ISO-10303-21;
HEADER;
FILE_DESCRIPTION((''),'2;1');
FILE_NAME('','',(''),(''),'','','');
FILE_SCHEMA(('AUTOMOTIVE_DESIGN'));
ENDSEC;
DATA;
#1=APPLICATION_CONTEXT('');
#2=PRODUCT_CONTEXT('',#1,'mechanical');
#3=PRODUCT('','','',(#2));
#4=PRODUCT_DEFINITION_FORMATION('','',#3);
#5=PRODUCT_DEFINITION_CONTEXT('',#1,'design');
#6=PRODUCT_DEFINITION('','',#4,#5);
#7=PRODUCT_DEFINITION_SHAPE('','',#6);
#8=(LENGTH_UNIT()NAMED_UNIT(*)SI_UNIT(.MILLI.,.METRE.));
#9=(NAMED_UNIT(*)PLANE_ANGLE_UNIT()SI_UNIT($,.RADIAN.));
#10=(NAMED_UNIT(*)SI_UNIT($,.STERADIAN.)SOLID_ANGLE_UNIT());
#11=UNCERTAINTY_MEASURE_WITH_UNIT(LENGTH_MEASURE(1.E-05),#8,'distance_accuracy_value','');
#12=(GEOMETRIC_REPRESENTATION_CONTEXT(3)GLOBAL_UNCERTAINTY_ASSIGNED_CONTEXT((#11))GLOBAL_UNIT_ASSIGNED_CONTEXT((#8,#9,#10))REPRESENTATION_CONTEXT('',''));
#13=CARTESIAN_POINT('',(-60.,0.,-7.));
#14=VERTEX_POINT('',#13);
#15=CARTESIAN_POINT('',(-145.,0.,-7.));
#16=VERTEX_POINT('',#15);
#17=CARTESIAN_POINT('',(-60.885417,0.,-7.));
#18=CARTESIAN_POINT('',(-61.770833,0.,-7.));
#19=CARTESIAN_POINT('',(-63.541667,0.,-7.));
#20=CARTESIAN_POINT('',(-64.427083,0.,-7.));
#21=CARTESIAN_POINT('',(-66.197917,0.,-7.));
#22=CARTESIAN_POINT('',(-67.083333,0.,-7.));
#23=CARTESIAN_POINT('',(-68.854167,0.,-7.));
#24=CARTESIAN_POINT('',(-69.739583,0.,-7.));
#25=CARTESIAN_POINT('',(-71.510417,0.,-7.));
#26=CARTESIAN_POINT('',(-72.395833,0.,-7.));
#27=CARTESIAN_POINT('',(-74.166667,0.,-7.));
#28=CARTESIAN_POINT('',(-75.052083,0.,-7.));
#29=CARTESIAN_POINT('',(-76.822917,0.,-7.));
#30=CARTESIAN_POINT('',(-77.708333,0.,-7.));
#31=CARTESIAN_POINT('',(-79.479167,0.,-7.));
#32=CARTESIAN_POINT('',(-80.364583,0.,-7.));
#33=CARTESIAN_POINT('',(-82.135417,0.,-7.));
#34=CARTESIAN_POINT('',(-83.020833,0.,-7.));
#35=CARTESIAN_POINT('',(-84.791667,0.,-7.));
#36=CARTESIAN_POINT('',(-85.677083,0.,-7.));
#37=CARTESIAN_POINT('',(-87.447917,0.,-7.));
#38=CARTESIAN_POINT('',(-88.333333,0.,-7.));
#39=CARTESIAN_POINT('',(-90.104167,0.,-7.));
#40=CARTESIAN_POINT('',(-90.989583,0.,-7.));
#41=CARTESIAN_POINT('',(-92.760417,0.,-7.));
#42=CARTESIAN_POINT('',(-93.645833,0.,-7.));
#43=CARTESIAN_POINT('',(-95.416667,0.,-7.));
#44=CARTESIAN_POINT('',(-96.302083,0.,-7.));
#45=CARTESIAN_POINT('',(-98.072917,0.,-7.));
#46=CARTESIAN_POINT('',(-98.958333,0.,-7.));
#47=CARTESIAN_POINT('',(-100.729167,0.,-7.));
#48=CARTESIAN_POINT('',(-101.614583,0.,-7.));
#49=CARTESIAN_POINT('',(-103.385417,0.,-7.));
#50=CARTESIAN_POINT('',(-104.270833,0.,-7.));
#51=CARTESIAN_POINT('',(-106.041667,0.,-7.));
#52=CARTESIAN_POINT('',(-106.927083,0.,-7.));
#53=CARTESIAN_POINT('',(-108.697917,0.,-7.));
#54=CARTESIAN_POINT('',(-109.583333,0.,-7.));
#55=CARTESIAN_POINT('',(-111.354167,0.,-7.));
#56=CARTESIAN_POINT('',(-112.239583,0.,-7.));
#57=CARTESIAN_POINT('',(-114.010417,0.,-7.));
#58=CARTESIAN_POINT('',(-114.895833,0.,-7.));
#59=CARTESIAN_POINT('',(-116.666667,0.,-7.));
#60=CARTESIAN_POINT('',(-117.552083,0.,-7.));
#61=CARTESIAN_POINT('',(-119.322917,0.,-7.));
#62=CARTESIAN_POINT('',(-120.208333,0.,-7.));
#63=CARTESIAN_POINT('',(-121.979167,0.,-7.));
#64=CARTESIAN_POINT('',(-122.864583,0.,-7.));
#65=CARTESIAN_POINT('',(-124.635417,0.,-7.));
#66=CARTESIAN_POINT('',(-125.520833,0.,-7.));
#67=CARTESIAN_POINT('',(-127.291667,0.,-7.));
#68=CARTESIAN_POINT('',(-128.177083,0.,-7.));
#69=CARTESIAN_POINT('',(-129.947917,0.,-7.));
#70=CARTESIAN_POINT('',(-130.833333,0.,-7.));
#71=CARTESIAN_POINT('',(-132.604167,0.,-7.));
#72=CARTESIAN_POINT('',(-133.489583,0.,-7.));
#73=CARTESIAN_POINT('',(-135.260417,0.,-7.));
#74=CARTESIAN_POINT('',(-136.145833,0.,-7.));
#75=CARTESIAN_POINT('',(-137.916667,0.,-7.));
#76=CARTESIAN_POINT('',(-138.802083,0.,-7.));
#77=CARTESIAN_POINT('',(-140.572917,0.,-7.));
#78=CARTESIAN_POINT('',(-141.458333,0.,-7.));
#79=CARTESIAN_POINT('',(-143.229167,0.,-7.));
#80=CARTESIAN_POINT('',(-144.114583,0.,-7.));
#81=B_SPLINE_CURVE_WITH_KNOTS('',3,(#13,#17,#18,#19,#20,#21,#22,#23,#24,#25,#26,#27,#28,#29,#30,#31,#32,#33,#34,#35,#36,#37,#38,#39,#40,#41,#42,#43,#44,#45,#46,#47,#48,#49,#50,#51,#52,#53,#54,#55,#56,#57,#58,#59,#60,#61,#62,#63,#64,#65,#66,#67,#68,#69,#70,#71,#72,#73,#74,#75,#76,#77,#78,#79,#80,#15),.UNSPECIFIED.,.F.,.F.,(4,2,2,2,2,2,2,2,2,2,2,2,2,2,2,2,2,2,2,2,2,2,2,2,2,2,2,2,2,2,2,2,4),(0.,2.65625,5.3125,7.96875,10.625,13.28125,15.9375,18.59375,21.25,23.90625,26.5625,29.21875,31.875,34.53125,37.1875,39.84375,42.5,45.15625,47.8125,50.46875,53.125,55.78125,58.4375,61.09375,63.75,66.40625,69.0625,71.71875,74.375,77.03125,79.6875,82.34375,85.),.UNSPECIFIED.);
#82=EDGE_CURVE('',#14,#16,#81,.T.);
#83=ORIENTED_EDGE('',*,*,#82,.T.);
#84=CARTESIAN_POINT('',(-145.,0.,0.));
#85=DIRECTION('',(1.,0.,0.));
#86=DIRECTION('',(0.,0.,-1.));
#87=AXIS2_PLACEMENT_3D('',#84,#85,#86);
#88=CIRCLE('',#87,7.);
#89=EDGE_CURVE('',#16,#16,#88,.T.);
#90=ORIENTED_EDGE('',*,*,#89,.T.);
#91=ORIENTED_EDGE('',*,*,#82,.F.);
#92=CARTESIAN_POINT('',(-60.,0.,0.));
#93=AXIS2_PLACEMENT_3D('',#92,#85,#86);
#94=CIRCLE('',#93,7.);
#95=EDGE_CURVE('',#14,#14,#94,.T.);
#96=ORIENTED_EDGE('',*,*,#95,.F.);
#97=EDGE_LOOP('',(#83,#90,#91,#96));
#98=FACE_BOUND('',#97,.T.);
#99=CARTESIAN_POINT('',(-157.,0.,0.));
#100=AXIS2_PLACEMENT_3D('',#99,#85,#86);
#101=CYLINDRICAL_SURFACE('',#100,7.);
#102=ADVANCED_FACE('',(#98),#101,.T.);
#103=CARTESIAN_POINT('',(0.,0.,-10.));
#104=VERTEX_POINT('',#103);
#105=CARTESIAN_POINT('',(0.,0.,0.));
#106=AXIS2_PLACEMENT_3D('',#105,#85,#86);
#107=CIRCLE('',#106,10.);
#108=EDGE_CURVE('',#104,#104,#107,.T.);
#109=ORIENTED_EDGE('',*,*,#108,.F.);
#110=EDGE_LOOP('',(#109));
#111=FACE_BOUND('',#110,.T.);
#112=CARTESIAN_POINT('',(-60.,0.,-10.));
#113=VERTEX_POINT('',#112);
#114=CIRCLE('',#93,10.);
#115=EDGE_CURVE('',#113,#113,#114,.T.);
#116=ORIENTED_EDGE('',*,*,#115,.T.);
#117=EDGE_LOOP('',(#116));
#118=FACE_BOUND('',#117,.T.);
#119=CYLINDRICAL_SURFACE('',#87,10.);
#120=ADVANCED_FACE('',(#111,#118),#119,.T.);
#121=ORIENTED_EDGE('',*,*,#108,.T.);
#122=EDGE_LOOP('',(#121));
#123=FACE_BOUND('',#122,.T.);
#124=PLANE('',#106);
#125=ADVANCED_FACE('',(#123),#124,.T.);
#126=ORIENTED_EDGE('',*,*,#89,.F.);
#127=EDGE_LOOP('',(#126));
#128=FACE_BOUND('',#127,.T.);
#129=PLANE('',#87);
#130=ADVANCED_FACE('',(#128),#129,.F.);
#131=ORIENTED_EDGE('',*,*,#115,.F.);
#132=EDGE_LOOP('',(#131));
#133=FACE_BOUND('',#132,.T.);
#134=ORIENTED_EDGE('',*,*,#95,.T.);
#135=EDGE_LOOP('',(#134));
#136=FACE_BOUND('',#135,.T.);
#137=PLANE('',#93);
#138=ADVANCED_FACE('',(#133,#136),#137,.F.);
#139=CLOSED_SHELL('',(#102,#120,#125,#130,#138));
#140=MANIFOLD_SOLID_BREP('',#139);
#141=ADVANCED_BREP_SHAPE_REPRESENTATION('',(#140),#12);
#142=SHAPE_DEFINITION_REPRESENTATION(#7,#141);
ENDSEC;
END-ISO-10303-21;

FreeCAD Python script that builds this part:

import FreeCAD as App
import Part
import Sketcher

V = App.Vector
Q = App.Units.Quantity

doc = App.newDocument("Part")
params = doc.addObject("Spreadsheet::Sheet", "Params")
for row, (alias, value) in enumerate([
    ("sketch1_diameter", "20 mm"),
    ("pad1_length", "145 mm"),
    ("sketch2_diameter", "20 mm"),
    ("sketch2_diameter2", "14 mm"),
    ("pocket1_length", "97 mm"),
], start=1):
    params.set(f"A{row}", alias)
    params.set(f"B{row}", "=" + value)
    params.setAlias(f"B{row}", alias)

body = doc.addObject("PartDesign::Body", "Body")

sketch1 = body.newObject("Sketcher::SketchObject", "Sketch")
sketch1.AttachmentSupport = (doc.getObject("YZ_Plane"), [""])
sketch1.MapMode = "FlatFace"
sketch1.addGeometry(Part.Circle(V(0, 0, 0), V(0, 0, 1), 10), False)
sketch1.addConstraint(Sketcher.Constraint("Coincident", 0, 3, -1, 1))
sketch1.addConstraint(Sketcher.Constraint("Diameter", 0, Q("20 mm")))
sketch1.setExpression("Constraints[1]", "Params.sketch1_diameter")
pad1 = body.newObject("PartDesign::Pad", "Pad")
pad1.Profile = sketch1
pad1.setExpression("Length", "Params.pad1_length")
pad1.Reversed = True

sketch2 = body.newObject("Sketcher::SketchObject", "Sketch001")
sketch2.AttachmentSupport = (doc.getObject("YZ_Plane"), [""])
sketch2.MapMode = "FlatFace"
sketch2.AttachmentOffset = App.Placement(V(0, 0, -60), App.Rotation())
sketch2.addGeometry(Part.Circle(V(0, 0, 0), V(0, 0, 1), 10), False)
sketch2.addGeometry(Part.Circle(V(0, 0, 0), V(0, 0, 1), 7), False)
sketch2.addConstraint(Sketcher.Constraint("Coincident", 0, 3, -1, 1))
sketch2.addConstraint(Sketcher.Constraint("Coincident", 1, 3, -1, 1))
sketch2.addConstraint(Sketcher.Constraint("Diameter", 0, Q("20 mm")))
sketch2.addConstraint(Sketcher.Constraint("Diameter", 1, Q("14 mm")))
sketch2.setExpression("Constraints[2]", "Params.sketch2_diameter")
sketch2.setExpression("Constraints[3]", "Params.sketch2_diameter2")
pocket1 = body.newObject("PartDesign::Pocket", "Pocket")
pocket1.Profile = sketch2
pocket1.setExpression("Length", "Params.pocket1_length")

doc.recompute()
